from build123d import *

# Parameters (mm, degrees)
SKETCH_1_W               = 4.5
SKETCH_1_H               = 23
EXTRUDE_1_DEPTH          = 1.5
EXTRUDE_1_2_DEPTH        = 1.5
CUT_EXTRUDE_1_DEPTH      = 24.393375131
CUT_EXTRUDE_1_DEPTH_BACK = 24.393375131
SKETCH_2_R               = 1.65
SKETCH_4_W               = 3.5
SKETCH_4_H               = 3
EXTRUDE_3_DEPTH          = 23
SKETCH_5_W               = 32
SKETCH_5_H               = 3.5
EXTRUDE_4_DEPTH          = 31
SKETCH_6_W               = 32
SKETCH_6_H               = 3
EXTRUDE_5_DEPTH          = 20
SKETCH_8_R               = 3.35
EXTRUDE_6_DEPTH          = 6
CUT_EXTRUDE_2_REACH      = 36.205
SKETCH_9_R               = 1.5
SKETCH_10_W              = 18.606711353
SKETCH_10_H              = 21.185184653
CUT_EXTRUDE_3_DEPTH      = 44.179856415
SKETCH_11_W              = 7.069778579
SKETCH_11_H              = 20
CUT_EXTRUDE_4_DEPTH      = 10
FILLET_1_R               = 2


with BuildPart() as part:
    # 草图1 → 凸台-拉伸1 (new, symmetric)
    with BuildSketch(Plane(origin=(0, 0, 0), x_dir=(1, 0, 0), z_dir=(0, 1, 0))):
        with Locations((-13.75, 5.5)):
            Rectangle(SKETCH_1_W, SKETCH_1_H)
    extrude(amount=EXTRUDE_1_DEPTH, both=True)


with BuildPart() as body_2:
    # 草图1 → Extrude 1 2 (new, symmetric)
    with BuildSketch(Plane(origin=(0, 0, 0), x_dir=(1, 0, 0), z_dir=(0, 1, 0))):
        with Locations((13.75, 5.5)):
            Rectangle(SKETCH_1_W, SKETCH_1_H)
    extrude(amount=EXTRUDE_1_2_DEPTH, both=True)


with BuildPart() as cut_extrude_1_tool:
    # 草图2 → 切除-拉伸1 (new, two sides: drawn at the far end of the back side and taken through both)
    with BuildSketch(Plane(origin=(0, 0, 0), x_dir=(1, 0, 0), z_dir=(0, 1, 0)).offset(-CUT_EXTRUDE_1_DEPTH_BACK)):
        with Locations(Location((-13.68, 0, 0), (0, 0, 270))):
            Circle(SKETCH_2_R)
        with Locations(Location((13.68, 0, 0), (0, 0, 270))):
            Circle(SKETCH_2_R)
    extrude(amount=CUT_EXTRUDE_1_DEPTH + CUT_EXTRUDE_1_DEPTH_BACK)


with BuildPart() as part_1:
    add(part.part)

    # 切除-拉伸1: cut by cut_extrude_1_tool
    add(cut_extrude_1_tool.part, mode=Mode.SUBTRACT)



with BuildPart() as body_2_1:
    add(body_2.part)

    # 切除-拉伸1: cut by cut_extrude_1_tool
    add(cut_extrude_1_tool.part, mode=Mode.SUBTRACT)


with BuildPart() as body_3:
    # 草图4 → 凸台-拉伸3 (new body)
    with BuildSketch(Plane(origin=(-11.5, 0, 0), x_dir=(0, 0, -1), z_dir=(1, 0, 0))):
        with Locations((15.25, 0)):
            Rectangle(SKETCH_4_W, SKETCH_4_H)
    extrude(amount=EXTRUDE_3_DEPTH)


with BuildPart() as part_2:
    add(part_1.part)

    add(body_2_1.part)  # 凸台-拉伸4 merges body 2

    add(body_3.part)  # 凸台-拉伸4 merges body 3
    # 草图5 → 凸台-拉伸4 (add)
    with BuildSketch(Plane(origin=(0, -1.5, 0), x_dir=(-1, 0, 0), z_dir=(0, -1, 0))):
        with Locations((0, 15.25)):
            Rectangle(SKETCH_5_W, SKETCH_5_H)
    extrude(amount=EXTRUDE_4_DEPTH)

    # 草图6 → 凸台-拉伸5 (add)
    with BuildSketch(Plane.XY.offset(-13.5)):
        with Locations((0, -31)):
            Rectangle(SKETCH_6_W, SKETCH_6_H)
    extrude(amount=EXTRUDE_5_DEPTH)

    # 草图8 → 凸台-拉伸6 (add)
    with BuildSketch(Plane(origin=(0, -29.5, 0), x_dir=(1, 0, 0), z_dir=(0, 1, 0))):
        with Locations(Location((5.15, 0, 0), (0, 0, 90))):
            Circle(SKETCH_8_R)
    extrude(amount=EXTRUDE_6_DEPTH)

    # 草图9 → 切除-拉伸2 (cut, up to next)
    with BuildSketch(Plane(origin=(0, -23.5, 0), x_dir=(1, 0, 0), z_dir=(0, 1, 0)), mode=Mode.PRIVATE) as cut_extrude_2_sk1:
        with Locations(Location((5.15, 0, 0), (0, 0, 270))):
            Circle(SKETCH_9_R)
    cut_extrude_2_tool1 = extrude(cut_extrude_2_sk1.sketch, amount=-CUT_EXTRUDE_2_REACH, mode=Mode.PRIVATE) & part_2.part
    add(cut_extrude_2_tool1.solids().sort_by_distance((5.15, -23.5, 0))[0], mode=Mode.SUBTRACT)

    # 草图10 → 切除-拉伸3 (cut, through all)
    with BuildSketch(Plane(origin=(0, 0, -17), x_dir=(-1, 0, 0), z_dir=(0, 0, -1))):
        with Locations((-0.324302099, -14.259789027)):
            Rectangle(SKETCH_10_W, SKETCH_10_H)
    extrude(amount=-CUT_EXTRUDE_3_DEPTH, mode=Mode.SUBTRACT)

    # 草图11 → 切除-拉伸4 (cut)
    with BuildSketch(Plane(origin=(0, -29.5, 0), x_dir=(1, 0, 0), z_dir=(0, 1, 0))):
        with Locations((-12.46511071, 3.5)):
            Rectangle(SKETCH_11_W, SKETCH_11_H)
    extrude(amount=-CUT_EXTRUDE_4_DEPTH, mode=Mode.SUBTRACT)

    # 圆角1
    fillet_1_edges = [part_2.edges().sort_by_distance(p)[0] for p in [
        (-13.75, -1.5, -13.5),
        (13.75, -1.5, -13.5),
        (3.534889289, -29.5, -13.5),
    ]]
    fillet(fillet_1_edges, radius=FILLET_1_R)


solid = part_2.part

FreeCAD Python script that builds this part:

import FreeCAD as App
import Part
import Sketcher
from FreeCAD import Vector


def edges_at(feature, points):
    """Names of the edges that pass closest to the given points."""
    edges = feature.Shape.Edges
    near = lambda p: min(range(len(edges)), key=lambda i: edges[i].distToShape(Part.Vertex(*p))[0])
    return sorted({f"Edge{near(p) + 1}" for p in points})


def add_polygon(sketch, points):
    """Adds a closed chain of lines whose ends are joined by coincident constraints."""
    first, n = sketch.GeometryCount, len(points)
    for a, b in zip(points, points[1:] + points[:1]):
        sketch.addGeometry(Part.LineSegment(App.Vector(*a, 0), App.Vector(*b, 0)), False)
    for i in range(n):
        sketch.addConstraint(Sketcher.Constraint("Coincident", first + i, 2, first + (i + 1) % n, 1))

doc = App.newDocument("Part")
body = doc.addObject("PartDesign::Body", "Body")

# Sketch on XZ plane
sketch1 = body.newObject("Sketcher::SketchObject", "Sketch")
sketch1.AttachmentSupport = (doc.getObject("XZ_Plane"), [""])
sketch1.MapMode = "FlatFace"
add_polygon(sketch1, [(-16, -17), (-16, 6), (-11.5, 6), (-11.5, -17)])  # lines 0-3
sketch1.addConstraint([
    Sketcher.Constraint("Vertical", 0),
    Sketcher.Constraint("Horizontal", 1),
    Sketcher.Constraint("Vertical", 2),
    Sketcher.Constraint("Horizontal", 3),
    Sketcher.Constraint("DistanceY", 0, 1, 0, 2, 23.0),
    Sketcher.Constraint("DistanceX", 1, 1, 1, 2, 4.5),
    Sketcher.Constraint("DistanceX", 0, 2, -1, 1, 16.0),
    Sketcher.Constraint("DistanceY", -1, 1, 0, 2, 6.0),
])
pad1 = body.newObject("PartDesign::Pad", "Pad")
pad1.Profile = sketch1
pad1.Length = 3
pad1.Midplane = True
body2 = doc.addObject("PartDesign::Body", "Body001")

# Sketch on XZ plane
sketch2 = body2.newObject("Sketcher::SketchObject", "Sketch001")
sketch2.AttachmentSupport = (doc.getObject("XZ_Plane001"), [""])
sketch2.MapMode = "FlatFace"
add_polygon(sketch2, [(11.5, -17), (11.5, 6), (16, 6), (16, -17)])  # lines 0-3
sketch2.addConstraint([
    Sketcher.Constraint("Vertical", 0),
    Sketcher.Constraint("Horizontal", 1),
    Sketcher.Constraint("Vertical", 2),
    Sketcher.Constraint("Horizontal", 3),
    Sketcher.Constraint("DistanceY", 0, 1, 0, 2, 23.0),
    Sketcher.Constraint("DistanceX", 1, 1, 1, 2, 4.5),
    Sketcher.Constraint("DistanceY", -1, 1, 0, 2, 6.0),
    Sketcher.Constraint("DistanceX", -1, 1, 1, 2, 16.0),
])
pad2 = body2.newObject("PartDesign::Pad", "Pad001")
pad2.Profile = sketch2
pad2.Length = 3
pad2.Midplane = True
body3 = doc.addObject("PartDesign::Body", "Body002")
body3.AllowCompound = True

# Sketch on XZ plane
sketch3 = body3.newObject("Sketcher::SketchObject", "Sketch002")
sketch3.AttachmentSupport = (doc.getObject("XZ_Plane002"), [""])
sketch3.MapMode = "FlatFace"
sketch3.addGeometry([
    Part.Circle(Vector(-13.68, 0, 0), Vector(0, 0, 1), 1.65),
    Part.Circle(Vector(13.68, 0, 0), Vector(0, 0, 1), 1.65),
], False)
sketch3.addConstraint([
    Sketcher.Constraint("Equal", 0, 1),
    Sketcher.Constraint("Symmetric", 0, 3, 1, 3, -1, 1),
    Sketcher.Constraint("PointOnObject", 0, 3, -1),
    Sketcher.Constraint("Diameter", 0, 3.3),
    Sketcher.Constraint("DistanceX", 0, 3, -1, 1, 13.68),
])
pad3 = body3.newObject("PartDesign::Pad", "Pad002")
pad3.Profile = sketch3
pad3.Type = "TwoLengths"
pad3.Length = 24.393375
pad3.Length2 = 24.393375
pad3.Reversed = True
doc.recompute()

body4 = doc.addObject("PartDesign::Body", "Body003")
body4.BaseFeature = body3
boolean = body.newObject("PartDesign::Boolean", "Boolean")
boolean.Type = "Cut"
boolean.addObjects([body4])
doc.recompute()

boolean2 = body2.newObject("PartDesign::Boolean", "Boolean001")
boolean2.Type = "Cut"
boolean2.addObjects([body3])
body5 = doc.addObject("PartDesign::Body", "Body004")

# Sketch on YZ plane
sketch4 = body5.newObject("Sketcher::SketchObject", "Sketch003")
sketch4.AttachmentSupport = (doc.getObject("YZ_Plane004"), [""])
sketch4.MapMode = "FlatFace"
sketch4.AttachmentOffset = App.Placement(Vector(0, 0, -11.5), App.Rotation())
add_polygon(sketch4, [(1.5, -13.5), (-1.5, -13.5), (-1.5, -17), (1.5, -17)])  # lines 0-3
sketch4.addConstraint([
    Sketcher.Constraint("Horizontal", 0),
    Sketcher.Constraint("Vertical", 1),
    Sketcher.Constraint("Horizontal", 2),
    Sketcher.Constraint("Vertical", 3),
    Sketcher.Constraint("DistanceX", 0, 2, 0, 1, 3.0),
    Sketcher.Constraint("DistanceY", 1, 2, 1, 1, 3.5),
    Sketcher.Constraint("DistanceY", 1, 2, -1, 1, 17.0),
    Sketcher.Constraint("DistanceX", 0, 2, -1, 1, 1.5),
])
pad4 = body5.newObject("PartDesign::Pad", "Pad003")
pad4.Profile = sketch4
pad4.Length = 23
body.AllowCompound = True
doc.recompute()

boolean3 = body.newObject("PartDesign::Boolean", "Boolean002")
boolean3.Type = "Fuse"
boolean3.addObjects([body2])
doc.recompute()

boolean4 = body.newObject("PartDesign::Boolean", "Boolean003")
boolean4.Type = "Fuse"
boolean4.addObjects([body5])

# Sketch on XZ plane
sketch5 = body.newObject("Sketcher::SketchObject", "Sketch004")
sketch5.AttachmentSupport = (doc.getObject("XZ_Plane"), [""])
sketch5.MapMode = "FlatFace"
sketch5.AttachmentOffset = App.Placement(Vector(0, 0, 1.5), App.Rotation())
add_polygon(sketch5, [(16, -17), (16, -13.5), (-16, -13.5), (-16, -17)])  # lines 0-3
sketch5.addConstraint([
    Sketcher.Constraint("Vertical", 0),
    Sketcher.Constraint("Horizontal", 1),
    Sketcher.Constraint("Vertical", 2),
    Sketcher.Constraint("Horizontal", 3),
    Sketcher.Constraint("DistanceX", 1, 2, 1, 1, 32.0),
    Sketcher.Constraint("DistanceY", 0, 1, 0, 2, 3.5),
    Sketcher.Constraint("DistanceX", -1, 1, 0, 2, 16.0),
    Sketcher.Constraint("DistanceY", 2, 2, -1, 1, 17.0),
])
pad5 = body.newObject("PartDesign::Pad", "Pad004")
pad5.Profile = sketch5
pad5.Length = 31

# Sketch on XY plane
sketch6 = body.newObject("Sketcher::SketchObject", "Sketch005")
sketch6.AttachmentSupport = (doc.getObject("XY_Plane"), [""])
sketch6.MapMode = "FlatFace"
sketch6.AttachmentOffset = App.Placement(Vector(0, 0, -13.5), App.Rotation())
add_polygon(sketch6, [(-16, -29.5), (-16, -32.5), (16, -32.5), (16, -29.5)])  # lines 0-3
sketch6.addConstraint([
    Sketcher.Constraint("Vertical", 0),
    Sketcher.Constraint("Horizontal", 1),
    Sketcher.Constraint("Vertical", 2),
    Sketcher.Constraint("Horizontal", 3),
    Sketcher.Constraint("DistanceX", 1, 1, 1, 2, 32.0),
    Sketcher.Constraint("DistanceY", 0, 2, 0, 1, 3.0),
    Sketcher.Constraint("DistanceX", 0, 2, -1, 1, 16.0),
    Sketcher.Constraint("DistanceY", 0, 2, -1, 1, 32.5),
])
pad6 = body.newObject("PartDesign::Pad", "Pad005")
pad6.Profile = sketch6
pad6.Length = 20

# Sketch on XZ plane
sketch7 = body.newObject("Sketcher::SketchObject", "Sketch006")
sketch7.AttachmentSupport = (doc.getObject("XZ_Plane"), [""])
sketch7.MapMode = "FlatFace"
sketch7.AttachmentOffset = App.Placement(Vector(0, 0, 29.5), App.Rotation())
sketch7.addGeometry(Part.Circle(Vector(5.15, 0, 0), Vector(0, 0, 1), 3.35), False)
sketch7.addConstraint([
    Sketcher.Constraint("PointOnObject", 0, 3, -1),
    Sketcher.Constraint("Diameter", 0, 6.7),
    Sketcher.Constraint("DistanceX", -1, 1, 0, 3, 5.15),
])
pad7 = body.newObject("PartDesign::Pad", "Pad006")
pad7.Profile = sketch7
pad7.Length = 6
pad7.Reversed = True

# Sketch on XZ plane
sketch8 = body.newObject("Sketcher::SketchObject", "Sketch007")
sketch8.AttachmentSupport = (doc.getObject("XZ_Plane"), [""])
sketch8.MapMode = "FlatFace"
sketch8.AttachmentOffset = App.Placement(Vector(0, 0, 23.5), App.Rotation())
sketch8.addGeometry(Part.Circle(Vector(5.15, 0, 0), Vector(0, 0, 1), 1.5), False)
sketch8.addConstraint([
    Sketcher.Constraint("PointOnObject", 0, 3, -1),
    Sketcher.Constraint("Diameter", 0, 3.0),
    Sketcher.Constraint("DistanceX", -1, 1, 0, 3, 5.15),
])
pocket1 = body.newObject("PartDesign::Pocket", "Pocket")
pocket1.Profile = sketch8
pocket1.Type = "UpToFirst"
pocket1.Reversed = True

# Sketch on XY plane
sketch9 = body.newObject("Sketcher::SketchObject", "Sketch008")
sketch9.AttachmentSupport = (doc.getObject("XY_Plane"), [""])
sketch9.MapMode = "FlatFace"
sketch9.AttachmentOffset = App.Placement(Vector(0, 0, -17), App.Rotation())
add_polygon(sketch9, [(9.627658, -3.667197), (9.627658, -24.852381), (-8.979054, -24.852381), (-8.979054, -3.667197)])  # lines 0-3
sketch9.addConstraint([
    Sketcher.Constraint("Vertical", 0),
    Sketcher.Constraint("Horizontal", 1),
    Sketcher.Constraint("Vertical", 2),
    Sketcher.Constraint("Horizontal", 3),
    Sketcher.Constraint("DistanceX", 1, 2, 1, 1, 18.606711),
    Sketcher.Constraint("DistanceY", 0, 2, 0, 1, 21.185185),
    Sketcher.Constraint("DistanceY", 0, 2, -1, 1, 24.852381),
    Sketcher.Constraint("DistanceX", -1, 1, 0, 2, 9.627658),
])
pocket2 = body.newObject("PartDesign::Pocket", "Pocket001")
pocket2.Profile = sketch9
pocket2.Type = "ThroughAll"
pocket2.Reversed = True

# Sketch on XZ plane
sketch10 = body.newObject("Sketcher::SketchObject", "Sketch009")
sketch10.AttachmentSupport = (doc.getObject("XZ_Plane"), [""])
sketch10.MapMode = "FlatFace"
sketch10.AttachmentOffset = App.Placement(Vector(0, 0, 29.5), App.Rotation())
add_polygon(sketch10, [(-16, -13.5), (-16, 6.5), (-8.930221, 6.5), (-8.930221, -13.5)])  # lines 0-3
sketch10.addConstraint([
    Sketcher.Constraint("Vertical", 0),
    Sketcher.Constraint("Horizontal", 1),
    Sketcher.Constraint("Vertical", 2),
    Sketcher.Constraint("Horizontal", 3),
    Sketcher.Constraint("DistanceY", 0, 1, 0, 2, 20.0),
    Sketcher.Constraint("DistanceX", 0, 2, -1, 1, 16.0),
    Sketcher.Constraint("DistanceY", -1, 1, 0, 2, 6.5),
    Sketcher.Constraint("DistanceX", 1, 1, 1, 2, 7.069779),
])
pocket3 = body.newObject("PartDesign::Pocket", "Pocket002")
pocket3.Profile = sketch10
pocket3.Length = 10
pocket3.Reversed = True
doc.recompute()

fillet = body.newObject("PartDesign::Fillet", "Fillet")
fillet.Base = (pocket3, edges_at(pocket3, [(-13.75, -1.5, -13.5), (13.75, -1.5, -13.5), (3.535, -29.5, -13.5)]))
fillet.Radius = 2

doc.recompute()
